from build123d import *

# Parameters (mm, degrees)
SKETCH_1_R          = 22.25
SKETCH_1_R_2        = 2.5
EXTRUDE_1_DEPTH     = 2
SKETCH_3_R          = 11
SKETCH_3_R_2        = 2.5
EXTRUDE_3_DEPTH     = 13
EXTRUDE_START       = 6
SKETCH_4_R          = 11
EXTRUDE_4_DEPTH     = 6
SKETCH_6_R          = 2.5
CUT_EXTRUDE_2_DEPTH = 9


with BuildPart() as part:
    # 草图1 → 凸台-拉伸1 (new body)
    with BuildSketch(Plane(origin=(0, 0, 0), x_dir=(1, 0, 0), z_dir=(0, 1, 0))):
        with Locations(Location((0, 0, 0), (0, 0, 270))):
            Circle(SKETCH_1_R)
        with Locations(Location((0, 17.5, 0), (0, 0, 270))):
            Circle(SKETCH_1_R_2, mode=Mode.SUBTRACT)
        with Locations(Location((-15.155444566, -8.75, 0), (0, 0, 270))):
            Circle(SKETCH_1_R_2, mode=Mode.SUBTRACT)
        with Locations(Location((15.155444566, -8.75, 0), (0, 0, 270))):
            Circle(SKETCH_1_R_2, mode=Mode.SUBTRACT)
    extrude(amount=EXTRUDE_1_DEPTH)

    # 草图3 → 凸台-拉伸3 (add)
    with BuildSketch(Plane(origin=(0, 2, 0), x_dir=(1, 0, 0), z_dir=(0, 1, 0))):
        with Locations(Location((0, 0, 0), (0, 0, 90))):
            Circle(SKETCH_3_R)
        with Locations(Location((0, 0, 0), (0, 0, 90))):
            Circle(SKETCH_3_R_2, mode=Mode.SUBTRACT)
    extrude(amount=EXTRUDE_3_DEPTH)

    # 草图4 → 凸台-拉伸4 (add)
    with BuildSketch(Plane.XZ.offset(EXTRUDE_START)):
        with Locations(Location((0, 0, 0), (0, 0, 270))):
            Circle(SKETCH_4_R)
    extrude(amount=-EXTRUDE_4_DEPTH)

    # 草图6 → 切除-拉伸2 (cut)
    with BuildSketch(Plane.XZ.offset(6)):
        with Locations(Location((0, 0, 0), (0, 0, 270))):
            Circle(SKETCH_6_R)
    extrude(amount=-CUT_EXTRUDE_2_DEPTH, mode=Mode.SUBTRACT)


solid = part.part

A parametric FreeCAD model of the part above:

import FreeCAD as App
import Part
import Sketcher
from FreeCAD import Vector

doc = App.newDocument("Part")
body = doc.addObject("PartDesign::Body", "Body")

# Sketch on XZ plane
sketch1 = doc.addObject("Sketcher::SketchObject", "Sketch")
body.addObject(sketch1)
sketch1.AttachmentSupport = (doc.XZ_Plane, [""])
sketch1.MapMode = "FlatFace"
sketch1.addGeometry(Part.Circle(Vector(0, 0, 0), Vector(0, 0, 1), 22.2), False)
sketch1.addGeometry(Part.Circle(Vector(0, -17.5, 0), Vector(0, 0, 1), 2.5), False)
sketch1.addGeometry(Part.Circle(Vector(-15.2, 8.8, 0), Vector(0, 0, 1), 2.5), False)
sketch1.addGeometry(Part.Circle(Vector(15.2, 8.8, 0), Vector(0, 0, 1), 2.5), False)
sketch1.addConstraint(Sketcher.Constraint("Coincident", 0, 3, -1, 1))
sketch1.addConstraint(Sketcher.Constraint("Equal", 1, 2))
sketch1.addConstraint(Sketcher.Constraint("Equal", 2, 3))
sketch1.addConstraint(Sketcher.Constraint("Symmetric", 2, 3, 3, 3, -2))
sketch1.addConstraint(Sketcher.Constraint("PointOnObject", 1, 3, -2))
sketch1.addConstraint(Sketcher.Constraint("Diameter", 1, 5.0))
sketch1.addConstraint(Sketcher.Constraint("Diameter", 0, 44.5))
sketch1.addConstraint(Sketcher.Constraint("DistanceY", 1, 3, -1, 1, 17.5))
sketch1.addConstraint(Sketcher.Constraint("DistanceY", -1, 1, 2, 3, 8.75))
sketch1.addConstraint(Sketcher.Constraint("DistanceX", 2, 3, 3, 3, 30.310889))
pad1 = doc.addObject("PartDesign::Pad", "Pad")
body.addObject(pad1)
pad1.Profile = sketch1
pad1.Length = 2
pad1.Reversed = True

# Sketch on XZ plane
sketch2 = doc.addObject("Sketcher::SketchObject", "Sketch001")
body.addObject(sketch2)
sketch2.AttachmentSupport = (doc.XZ_Plane, [""])
sketch2.MapMode = "FlatFace"
sketch2.AttachmentOffset = App.Placement(Vector(0, 0, -2), App.Rotation())
sketch2.addGeometry(Part.Circle(Vector(0, 0, 0), Vector(0, 0, 1), 11), False)
sketch2.addGeometry(Part.Circle(Vector(0, 0, 0), Vector(0, 0, 1), 2.5), False)
sketch2.addConstraint(Sketcher.Constraint("Coincident", 0, 3, -1, 1))
sketch2.addConstraint(Sketcher.Constraint("Coincident", 1, 3, -1, 1))
sketch2.addConstraint(Sketcher.Constraint("Diameter", 0, 22.0))
sketch2.addConstraint(Sketcher.Constraint("Diameter", 1, 5.0))
pad2 = doc.addObject("PartDesign::Pad", "Pad001")
body.addObject(pad2)
pad2.Profile = sketch2
pad2.Length = 13
pad2.Reversed = True

# Sketch on XZ plane
sketch3 = doc.addObject("Sketcher::SketchObject", "Sketch002")
body.addObject(sketch3)
sketch3.AttachmentSupport = (doc.XZ_Plane, [""])
sketch3.MapMode = "FlatFace"
sketch3.AttachmentOffset = App.Placement(Vector(0, 0, 6), App.Rotation())
sketch3.addGeometry(Part.Circle(Vector(0, 0, 0), Vector(0, 0, 1), 11), False)
sketch3.addConstraint(Sketcher.Constraint("Coincident", 0, 3, -1, 1))
sketch3.addConstraint(Sketcher.Constraint("Diameter", 0, 22.0))
pad3 = doc.addObject("PartDesign::Pad", "Pad002")
body.addObject(pad3)
pad3.Profile = sketch3
pad3.Length = 6
pad3.Reversed = True

# Sketch on XZ plane
sketch4 = doc.addObject("Sketcher::SketchObject", "Sketch003")
body.addObject(sketch4)
sketch4.AttachmentSupport = (doc.XZ_Plane, [""])
sketch4.MapMode = "FlatFace"
sketch4.AttachmentOffset = App.Placement(Vector(0, 0, 6), App.Rotation())
sketch4.addGeometry(Part.Circle(Vector(0, 0, 0), Vector(0, 0, 1), 2.5), False)
sketch4.addConstraint(Sketcher.Constraint("Coincident", 0, 3, -1, 1))
sketch4.addConstraint(Sketcher.Constraint("Diameter", 0, 5.0))
pocket1 = doc.addObject("PartDesign::Pocket", "Pocket")
body.addObject(pocket1)
pocket1.Profile = sketch4
pocket1.Length = 9

doc.recompute()
